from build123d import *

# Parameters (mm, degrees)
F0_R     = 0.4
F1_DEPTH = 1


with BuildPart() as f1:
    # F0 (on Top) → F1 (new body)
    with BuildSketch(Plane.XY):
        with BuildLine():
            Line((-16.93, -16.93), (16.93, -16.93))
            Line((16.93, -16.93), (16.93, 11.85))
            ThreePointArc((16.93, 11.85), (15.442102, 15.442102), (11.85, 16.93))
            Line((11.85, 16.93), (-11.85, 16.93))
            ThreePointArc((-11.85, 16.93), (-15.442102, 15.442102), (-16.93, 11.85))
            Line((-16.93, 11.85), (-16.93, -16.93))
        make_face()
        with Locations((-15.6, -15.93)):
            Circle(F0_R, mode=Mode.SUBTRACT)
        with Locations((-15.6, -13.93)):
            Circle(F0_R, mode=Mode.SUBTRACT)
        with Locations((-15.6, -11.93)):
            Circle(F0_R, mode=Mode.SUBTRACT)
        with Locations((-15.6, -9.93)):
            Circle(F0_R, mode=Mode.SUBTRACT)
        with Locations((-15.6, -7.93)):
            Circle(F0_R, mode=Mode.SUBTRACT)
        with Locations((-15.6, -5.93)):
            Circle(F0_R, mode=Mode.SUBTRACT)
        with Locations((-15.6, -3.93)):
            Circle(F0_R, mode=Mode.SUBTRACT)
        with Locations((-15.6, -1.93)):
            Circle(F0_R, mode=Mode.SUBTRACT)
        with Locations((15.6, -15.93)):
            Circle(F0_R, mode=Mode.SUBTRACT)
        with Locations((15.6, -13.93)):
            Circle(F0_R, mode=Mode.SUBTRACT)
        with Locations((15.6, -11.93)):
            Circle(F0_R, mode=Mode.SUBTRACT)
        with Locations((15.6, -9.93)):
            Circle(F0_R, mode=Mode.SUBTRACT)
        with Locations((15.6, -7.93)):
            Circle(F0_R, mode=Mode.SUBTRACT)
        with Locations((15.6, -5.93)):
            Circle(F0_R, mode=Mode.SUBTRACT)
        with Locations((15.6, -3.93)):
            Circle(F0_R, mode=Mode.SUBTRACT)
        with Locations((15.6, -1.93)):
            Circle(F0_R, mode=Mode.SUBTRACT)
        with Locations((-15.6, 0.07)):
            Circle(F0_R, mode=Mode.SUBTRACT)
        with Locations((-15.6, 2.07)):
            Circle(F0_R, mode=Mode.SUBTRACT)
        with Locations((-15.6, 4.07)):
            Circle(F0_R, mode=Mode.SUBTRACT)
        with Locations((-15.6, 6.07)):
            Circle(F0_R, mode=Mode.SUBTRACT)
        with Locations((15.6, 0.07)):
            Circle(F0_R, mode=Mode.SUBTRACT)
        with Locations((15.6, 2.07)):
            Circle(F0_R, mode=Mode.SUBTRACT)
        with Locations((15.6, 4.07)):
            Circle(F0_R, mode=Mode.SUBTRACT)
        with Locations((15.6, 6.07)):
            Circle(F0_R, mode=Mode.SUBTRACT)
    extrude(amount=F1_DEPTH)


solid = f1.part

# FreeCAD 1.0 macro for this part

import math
import FreeCAD as App
import Part
import Sketcher
from FreeCAD import Vector
Q = App.Units.Quantity

doc = App.newDocument("Part")
params = doc.addObject("Spreadsheet::Sheet", "Params")
for row, (alias, value) in enumerate([
    ("sketch1_diameter", "0.8 mm"),
    ("sketch1_radius", "5.080002 mm"),
    ("sketch1_width", "23.7 mm"),
    ("sketch1_height", "28.78 mm"),
    ("pad1_length", "1 mm"),
], start=1):
    params.set(f"A{row}", alias)
    params.set(f"B{row}", "=" + value)
    params.setAlias(f"B{row}", alias)

body = doc.addObject("PartDesign::Body", "Body")

sketch1 = doc.addObject("Sketcher::SketchObject", "Sketch")
body.addObject(sketch1)
sketch1.AttachmentSupport = (doc.XY_Plane, [""])
sketch1.MapMode = "FlatFace"
sketch1.addGeometry([
    Part.LineSegment(Vector(-16.93, -16.93, 0), Vector(16.93, -16.93, 0)),
    Part.LineSegment(Vector(16.93, -16.93, 0), Vector(16.93, 11.85, 0)),
    Part.ArcOfCircle(Part.Circle(Vector(11.85, 11.85, 0), Vector(0, 0, 1), 5.08), math.radians(0), math.radians(90)),
    Part.LineSegment(Vector(11.85, 16.93, 0), Vector(-11.85, 16.93, 0)),
    Part.ArcOfCircle(Part.Circle(Vector(-11.85, 11.85, 0), Vector(0, 0, 1), 5.08), math.radians(90), math.radians(180)),
    Part.LineSegment(Vector(-16.93, 11.85, 0), Vector(-16.93, -16.93, 0)),
    Part.Circle(Vector(-15.6, -15.93, 0), Vector(0, 0, 1), 0.4),
    Part.Circle(Vector(-15.6, -13.93, 0), Vector(0, 0, 1), 0.4),
    Part.Circle(Vector(-15.6, -11.93, 0), Vector(0, 0, 1), 0.4),
    Part.Circle(Vector(-15.6, -9.93, 0), Vector(0, 0, 1), 0.4),
    Part.Circle(Vector(-15.6, -7.93, 0), Vector(0, 0, 1), 0.4),
    Part.Circle(Vector(-15.6, -5.93, 0), Vector(0, 0, 1), 0.4),
    Part.Circle(Vector(15.6, -15.93, 0), Vector(0, 0, 1), 0.4),
    Part.Circle(Vector(15.6, -13.93, 0), Vector(0, 0, 1), 0.4),
    Part.Circle(Vector(15.6, -11.93, 0), Vector(0, 0, 1), 0.4),
    Part.Circle(Vector(15.6, -9.93, 0), Vector(0, 0, 1), 0.4),
    Part.Circle(Vector(15.6, -7.93, 0), Vector(0, 0, 1), 0.4),
    Part.Circle(Vector(15.6, -5.93, 0), Vector(0, 0, 1), 0.4),
    Part.Circle(Vector(-15.6, -3.93, 0), Vector(0, 0, 1), 0.4),
    Part.Circle(Vector(-15.6, -1.93, 0), Vector(0, 0, 1), 0.4),
    Part.Circle(Vector(-15.6, 0.07, 0), Vector(0, 0, 1), 0.4),
    Part.Circle(Vector(-15.6, 2.07, 0), Vector(0, 0, 1), 0.4),
    Part.Circle(Vector(-15.6, 4.07, 0), Vector(0, 0, 1), 0.4),
    Part.Circle(Vector(-15.6, 6.07, 0), Vector(0, 0, 1), 0.4),
    Part.Circle(Vector(15.6, -3.93, 0), Vector(0, 0, 1), 0.4),
    Part.Circle(Vector(15.6, -1.93, 0), Vector(0, 0, 1), 0.4),
    Part.Circle(Vector(15.6, 0.07, 0), Vector(0, 0, 1), 0.4),
    Part.Circle(Vector(15.6, 2.07, 0), Vector(0, 0, 1), 0.4),
    Part.Circle(Vector(15.6, 4.07, 0), Vector(0, 0, 1), 0.4),
    Part.Circle(Vector(15.6, 6.07, 0), Vector(0, 0, 1), 0.4),
], False)
sketch1.addConstraint([
    Sketcher.Constraint("Coincident", 0, 2, 1, 1),
    Sketcher.Constraint("Tangent", 1, 2, 2, 1),
    Sketcher.Constraint("Tangent", 2, 2, 3, 1),
    Sketcher.Constraint("Tangent", 3, 2, 4, 1),
    Sketcher.Constraint("Tangent", 4, 2, 5, 1),
    Sketcher.Constraint("Coincident", 5, 2, 0, 1),
    Sketcher.Constraint("Horizontal", 0),
    Sketcher.Constraint("Vertical", 1),
    Sketcher.Constraint("Horizontal", 3),
    Sketcher.Constraint("Vertical", 5),
    Sketcher.Constraint("Equal", 2, 4),
    Sketcher.Constraint("Equal", 6, 7),
    Sketcher.Constraint("Equal", 7, 8),
    Sketcher.Constraint("Equal", 8, 9),
    Sketcher.Constraint("Equal", 9, 10),
    Sketcher.Constraint("Equal", 10, 11),
    Sketcher.Constraint("Equal", 11, 12),
    Sketcher.Constraint("Equal", 12, 13),
    Sketcher.Constraint("Equal", 13, 14),
    Sketcher.Constraint("Equal", 14, 15),
    Sketcher.Constraint("Equal", 15, 16),
    Sketcher.Constraint("Equal", 16, 17),
    Sketcher.Constraint("Equal", 17, 18),
    Sketcher.Constraint("Equal", 18, 19),
    Sketcher.Constraint("Equal", 19, 20),
    Sketcher.Constraint("Equal", 20, 21),
    Sketcher.Constraint("Equal", 21, 22),
    Sketcher.Constraint("Equal", 22, 23),
    Sketcher.Constraint("Equal", 23, 24),
    Sketcher.Constraint("Equal", 24, 25),
    Sketcher.Constraint("Equal", 25, 26),
    Sketcher.Constraint("Equal", 26, 27),
    Sketcher.Constraint("Equal", 27, 28),
    Sketcher.Constraint("Equal", 28, 29),
    Sketcher.Constraint("Symmetric", 6, 3, 12, 3, -2),
    Sketcher.Constraint("Symmetric", 7, 3, 13, 3, -2),
    Sketcher.Constraint("Symmetric", 8, 3, 14, 3, -2),
    Sketcher.Constraint("Symmetric", 9, 3, 15, 3, -2),
    Sketcher.Constraint("Symmetric", 10, 3, 16, 3, -2),
    Sketcher.Constraint("Symmetric", 11, 3, 17, 3, -2),
    Sketcher.Constraint("Symmetric", 18, 3, 24, 3, -2),
    Sketcher.Constraint("Symmetric", 19, 3, 25, 3, -2),
    Sketcher.Constraint("Symmetric", 20, 3, 26, 3, -2),
    Sketcher.Constraint("Symmetric", 21, 3, 27, 3, -2),
    Sketcher.Constraint("Symmetric", 22, 3, 28, 3, -2),
    Sketcher.Constraint("Symmetric", 23, 3, 29, 3, -2),
    Sketcher.Constraint("Vertical", 6, 3, 7, 3),
    Sketcher.Constraint("Vertical", 7, 3, 8, 3),
    Sketcher.Constraint("Vertical", 8, 3, 9, 3),
    Sketcher.Constraint("Vertical", 9, 3, 10, 3),
    Sketcher.Constraint("Vertical", 10, 3, 11, 3),
    Sketcher.Constraint("Vertical", 11, 3, 18, 3),
    Sketcher.Constraint("Vertical", 18, 3, 19, 3),
    Sketcher.Constraint("Vertical", 19, 3, 20, 3),
    Sketcher.Constraint("Vertical", 20, 3, 21, 3),
    Sketcher.Constraint("Vertical", 21, 3, 22, 3),
    Sketcher.Constraint("Vertical", 22, 3, 23, 3),
    Sketcher.Constraint("Diameter", 6, Q("0.8 mm")),
    Sketcher.Constraint("Radius", 2, Q("5.080002 mm")),
    Sketcher.Constraint("DistanceX", 3, 2, 3, 1, Q("23.7 mm")),
    Sketcher.Constraint("DistanceY", 6, 3, 7, 3, Q("2 mm")),
    Sketcher.Constraint("DistanceY", 7, 3, 8, 3, Q("2 mm")),
    Sketcher.Constraint("DistanceY", 8, 3, 9, 3, Q("2 mm")),
    Sketcher.Constraint("DistanceY", 9, 3, 10, 3, Q("2 mm")),
    Sketcher.Constraint("DistanceY", 10, 3, 11, 3, Q("2 mm")),
    Sketcher.Constraint("DistanceY", 11, 3, 18, 3, Q("2 mm")),
    Sketcher.Constraint("DistanceY", 18, 3, 19, 3, Q("2 mm")),
    Sketcher.Constraint("DistanceY", 19, 3, 20, 3, Q("2 mm")),
    Sketcher.Constraint("DistanceY", 20, 3, 21, 3, Q("2 mm")),
    Sketcher.Constraint("DistanceY", 21, 3, 22, 3, Q("2 mm")),
    Sketcher.Constraint("DistanceY", 22, 3, 23, 3, Q("2 mm")),
    Sketcher.Constraint("DistanceY", 0, 2, 12, 3, Q("1 mm")),
    Sketcher.Constraint("DistanceY", 1, 1, 1, 2, Q("28.78 mm")),
    Sketcher.Constraint("DistanceX", 6, 3, -1, 1, Q("15.6 mm")),
    Sketcher.Constraint("DistanceX", -1, 1, 2, 3, Q("11.849998 mm")),
    Sketcher.Constraint("DistanceY", -1, 1, 2, 3, Q("11.849998 mm")),
])
sketch1.setExpression("Constraints[57]", "Params.sketch1_diameter")
sketch1.setExpression("Constraints[58]", "Params.sketch1_radius")
sketch1.setExpression("Constraints[59]", "Params.sketch1_width")
sketch1.setExpression("Constraints[72]", "Params.sketch1_height")
pad1 = doc.addObject("PartDesign::Pad", "Pad")
body.addObject(pad1)
pad1.Profile = sketch1
pad1.setExpression("Length", "Params.pad1_length")

doc.recompute()
